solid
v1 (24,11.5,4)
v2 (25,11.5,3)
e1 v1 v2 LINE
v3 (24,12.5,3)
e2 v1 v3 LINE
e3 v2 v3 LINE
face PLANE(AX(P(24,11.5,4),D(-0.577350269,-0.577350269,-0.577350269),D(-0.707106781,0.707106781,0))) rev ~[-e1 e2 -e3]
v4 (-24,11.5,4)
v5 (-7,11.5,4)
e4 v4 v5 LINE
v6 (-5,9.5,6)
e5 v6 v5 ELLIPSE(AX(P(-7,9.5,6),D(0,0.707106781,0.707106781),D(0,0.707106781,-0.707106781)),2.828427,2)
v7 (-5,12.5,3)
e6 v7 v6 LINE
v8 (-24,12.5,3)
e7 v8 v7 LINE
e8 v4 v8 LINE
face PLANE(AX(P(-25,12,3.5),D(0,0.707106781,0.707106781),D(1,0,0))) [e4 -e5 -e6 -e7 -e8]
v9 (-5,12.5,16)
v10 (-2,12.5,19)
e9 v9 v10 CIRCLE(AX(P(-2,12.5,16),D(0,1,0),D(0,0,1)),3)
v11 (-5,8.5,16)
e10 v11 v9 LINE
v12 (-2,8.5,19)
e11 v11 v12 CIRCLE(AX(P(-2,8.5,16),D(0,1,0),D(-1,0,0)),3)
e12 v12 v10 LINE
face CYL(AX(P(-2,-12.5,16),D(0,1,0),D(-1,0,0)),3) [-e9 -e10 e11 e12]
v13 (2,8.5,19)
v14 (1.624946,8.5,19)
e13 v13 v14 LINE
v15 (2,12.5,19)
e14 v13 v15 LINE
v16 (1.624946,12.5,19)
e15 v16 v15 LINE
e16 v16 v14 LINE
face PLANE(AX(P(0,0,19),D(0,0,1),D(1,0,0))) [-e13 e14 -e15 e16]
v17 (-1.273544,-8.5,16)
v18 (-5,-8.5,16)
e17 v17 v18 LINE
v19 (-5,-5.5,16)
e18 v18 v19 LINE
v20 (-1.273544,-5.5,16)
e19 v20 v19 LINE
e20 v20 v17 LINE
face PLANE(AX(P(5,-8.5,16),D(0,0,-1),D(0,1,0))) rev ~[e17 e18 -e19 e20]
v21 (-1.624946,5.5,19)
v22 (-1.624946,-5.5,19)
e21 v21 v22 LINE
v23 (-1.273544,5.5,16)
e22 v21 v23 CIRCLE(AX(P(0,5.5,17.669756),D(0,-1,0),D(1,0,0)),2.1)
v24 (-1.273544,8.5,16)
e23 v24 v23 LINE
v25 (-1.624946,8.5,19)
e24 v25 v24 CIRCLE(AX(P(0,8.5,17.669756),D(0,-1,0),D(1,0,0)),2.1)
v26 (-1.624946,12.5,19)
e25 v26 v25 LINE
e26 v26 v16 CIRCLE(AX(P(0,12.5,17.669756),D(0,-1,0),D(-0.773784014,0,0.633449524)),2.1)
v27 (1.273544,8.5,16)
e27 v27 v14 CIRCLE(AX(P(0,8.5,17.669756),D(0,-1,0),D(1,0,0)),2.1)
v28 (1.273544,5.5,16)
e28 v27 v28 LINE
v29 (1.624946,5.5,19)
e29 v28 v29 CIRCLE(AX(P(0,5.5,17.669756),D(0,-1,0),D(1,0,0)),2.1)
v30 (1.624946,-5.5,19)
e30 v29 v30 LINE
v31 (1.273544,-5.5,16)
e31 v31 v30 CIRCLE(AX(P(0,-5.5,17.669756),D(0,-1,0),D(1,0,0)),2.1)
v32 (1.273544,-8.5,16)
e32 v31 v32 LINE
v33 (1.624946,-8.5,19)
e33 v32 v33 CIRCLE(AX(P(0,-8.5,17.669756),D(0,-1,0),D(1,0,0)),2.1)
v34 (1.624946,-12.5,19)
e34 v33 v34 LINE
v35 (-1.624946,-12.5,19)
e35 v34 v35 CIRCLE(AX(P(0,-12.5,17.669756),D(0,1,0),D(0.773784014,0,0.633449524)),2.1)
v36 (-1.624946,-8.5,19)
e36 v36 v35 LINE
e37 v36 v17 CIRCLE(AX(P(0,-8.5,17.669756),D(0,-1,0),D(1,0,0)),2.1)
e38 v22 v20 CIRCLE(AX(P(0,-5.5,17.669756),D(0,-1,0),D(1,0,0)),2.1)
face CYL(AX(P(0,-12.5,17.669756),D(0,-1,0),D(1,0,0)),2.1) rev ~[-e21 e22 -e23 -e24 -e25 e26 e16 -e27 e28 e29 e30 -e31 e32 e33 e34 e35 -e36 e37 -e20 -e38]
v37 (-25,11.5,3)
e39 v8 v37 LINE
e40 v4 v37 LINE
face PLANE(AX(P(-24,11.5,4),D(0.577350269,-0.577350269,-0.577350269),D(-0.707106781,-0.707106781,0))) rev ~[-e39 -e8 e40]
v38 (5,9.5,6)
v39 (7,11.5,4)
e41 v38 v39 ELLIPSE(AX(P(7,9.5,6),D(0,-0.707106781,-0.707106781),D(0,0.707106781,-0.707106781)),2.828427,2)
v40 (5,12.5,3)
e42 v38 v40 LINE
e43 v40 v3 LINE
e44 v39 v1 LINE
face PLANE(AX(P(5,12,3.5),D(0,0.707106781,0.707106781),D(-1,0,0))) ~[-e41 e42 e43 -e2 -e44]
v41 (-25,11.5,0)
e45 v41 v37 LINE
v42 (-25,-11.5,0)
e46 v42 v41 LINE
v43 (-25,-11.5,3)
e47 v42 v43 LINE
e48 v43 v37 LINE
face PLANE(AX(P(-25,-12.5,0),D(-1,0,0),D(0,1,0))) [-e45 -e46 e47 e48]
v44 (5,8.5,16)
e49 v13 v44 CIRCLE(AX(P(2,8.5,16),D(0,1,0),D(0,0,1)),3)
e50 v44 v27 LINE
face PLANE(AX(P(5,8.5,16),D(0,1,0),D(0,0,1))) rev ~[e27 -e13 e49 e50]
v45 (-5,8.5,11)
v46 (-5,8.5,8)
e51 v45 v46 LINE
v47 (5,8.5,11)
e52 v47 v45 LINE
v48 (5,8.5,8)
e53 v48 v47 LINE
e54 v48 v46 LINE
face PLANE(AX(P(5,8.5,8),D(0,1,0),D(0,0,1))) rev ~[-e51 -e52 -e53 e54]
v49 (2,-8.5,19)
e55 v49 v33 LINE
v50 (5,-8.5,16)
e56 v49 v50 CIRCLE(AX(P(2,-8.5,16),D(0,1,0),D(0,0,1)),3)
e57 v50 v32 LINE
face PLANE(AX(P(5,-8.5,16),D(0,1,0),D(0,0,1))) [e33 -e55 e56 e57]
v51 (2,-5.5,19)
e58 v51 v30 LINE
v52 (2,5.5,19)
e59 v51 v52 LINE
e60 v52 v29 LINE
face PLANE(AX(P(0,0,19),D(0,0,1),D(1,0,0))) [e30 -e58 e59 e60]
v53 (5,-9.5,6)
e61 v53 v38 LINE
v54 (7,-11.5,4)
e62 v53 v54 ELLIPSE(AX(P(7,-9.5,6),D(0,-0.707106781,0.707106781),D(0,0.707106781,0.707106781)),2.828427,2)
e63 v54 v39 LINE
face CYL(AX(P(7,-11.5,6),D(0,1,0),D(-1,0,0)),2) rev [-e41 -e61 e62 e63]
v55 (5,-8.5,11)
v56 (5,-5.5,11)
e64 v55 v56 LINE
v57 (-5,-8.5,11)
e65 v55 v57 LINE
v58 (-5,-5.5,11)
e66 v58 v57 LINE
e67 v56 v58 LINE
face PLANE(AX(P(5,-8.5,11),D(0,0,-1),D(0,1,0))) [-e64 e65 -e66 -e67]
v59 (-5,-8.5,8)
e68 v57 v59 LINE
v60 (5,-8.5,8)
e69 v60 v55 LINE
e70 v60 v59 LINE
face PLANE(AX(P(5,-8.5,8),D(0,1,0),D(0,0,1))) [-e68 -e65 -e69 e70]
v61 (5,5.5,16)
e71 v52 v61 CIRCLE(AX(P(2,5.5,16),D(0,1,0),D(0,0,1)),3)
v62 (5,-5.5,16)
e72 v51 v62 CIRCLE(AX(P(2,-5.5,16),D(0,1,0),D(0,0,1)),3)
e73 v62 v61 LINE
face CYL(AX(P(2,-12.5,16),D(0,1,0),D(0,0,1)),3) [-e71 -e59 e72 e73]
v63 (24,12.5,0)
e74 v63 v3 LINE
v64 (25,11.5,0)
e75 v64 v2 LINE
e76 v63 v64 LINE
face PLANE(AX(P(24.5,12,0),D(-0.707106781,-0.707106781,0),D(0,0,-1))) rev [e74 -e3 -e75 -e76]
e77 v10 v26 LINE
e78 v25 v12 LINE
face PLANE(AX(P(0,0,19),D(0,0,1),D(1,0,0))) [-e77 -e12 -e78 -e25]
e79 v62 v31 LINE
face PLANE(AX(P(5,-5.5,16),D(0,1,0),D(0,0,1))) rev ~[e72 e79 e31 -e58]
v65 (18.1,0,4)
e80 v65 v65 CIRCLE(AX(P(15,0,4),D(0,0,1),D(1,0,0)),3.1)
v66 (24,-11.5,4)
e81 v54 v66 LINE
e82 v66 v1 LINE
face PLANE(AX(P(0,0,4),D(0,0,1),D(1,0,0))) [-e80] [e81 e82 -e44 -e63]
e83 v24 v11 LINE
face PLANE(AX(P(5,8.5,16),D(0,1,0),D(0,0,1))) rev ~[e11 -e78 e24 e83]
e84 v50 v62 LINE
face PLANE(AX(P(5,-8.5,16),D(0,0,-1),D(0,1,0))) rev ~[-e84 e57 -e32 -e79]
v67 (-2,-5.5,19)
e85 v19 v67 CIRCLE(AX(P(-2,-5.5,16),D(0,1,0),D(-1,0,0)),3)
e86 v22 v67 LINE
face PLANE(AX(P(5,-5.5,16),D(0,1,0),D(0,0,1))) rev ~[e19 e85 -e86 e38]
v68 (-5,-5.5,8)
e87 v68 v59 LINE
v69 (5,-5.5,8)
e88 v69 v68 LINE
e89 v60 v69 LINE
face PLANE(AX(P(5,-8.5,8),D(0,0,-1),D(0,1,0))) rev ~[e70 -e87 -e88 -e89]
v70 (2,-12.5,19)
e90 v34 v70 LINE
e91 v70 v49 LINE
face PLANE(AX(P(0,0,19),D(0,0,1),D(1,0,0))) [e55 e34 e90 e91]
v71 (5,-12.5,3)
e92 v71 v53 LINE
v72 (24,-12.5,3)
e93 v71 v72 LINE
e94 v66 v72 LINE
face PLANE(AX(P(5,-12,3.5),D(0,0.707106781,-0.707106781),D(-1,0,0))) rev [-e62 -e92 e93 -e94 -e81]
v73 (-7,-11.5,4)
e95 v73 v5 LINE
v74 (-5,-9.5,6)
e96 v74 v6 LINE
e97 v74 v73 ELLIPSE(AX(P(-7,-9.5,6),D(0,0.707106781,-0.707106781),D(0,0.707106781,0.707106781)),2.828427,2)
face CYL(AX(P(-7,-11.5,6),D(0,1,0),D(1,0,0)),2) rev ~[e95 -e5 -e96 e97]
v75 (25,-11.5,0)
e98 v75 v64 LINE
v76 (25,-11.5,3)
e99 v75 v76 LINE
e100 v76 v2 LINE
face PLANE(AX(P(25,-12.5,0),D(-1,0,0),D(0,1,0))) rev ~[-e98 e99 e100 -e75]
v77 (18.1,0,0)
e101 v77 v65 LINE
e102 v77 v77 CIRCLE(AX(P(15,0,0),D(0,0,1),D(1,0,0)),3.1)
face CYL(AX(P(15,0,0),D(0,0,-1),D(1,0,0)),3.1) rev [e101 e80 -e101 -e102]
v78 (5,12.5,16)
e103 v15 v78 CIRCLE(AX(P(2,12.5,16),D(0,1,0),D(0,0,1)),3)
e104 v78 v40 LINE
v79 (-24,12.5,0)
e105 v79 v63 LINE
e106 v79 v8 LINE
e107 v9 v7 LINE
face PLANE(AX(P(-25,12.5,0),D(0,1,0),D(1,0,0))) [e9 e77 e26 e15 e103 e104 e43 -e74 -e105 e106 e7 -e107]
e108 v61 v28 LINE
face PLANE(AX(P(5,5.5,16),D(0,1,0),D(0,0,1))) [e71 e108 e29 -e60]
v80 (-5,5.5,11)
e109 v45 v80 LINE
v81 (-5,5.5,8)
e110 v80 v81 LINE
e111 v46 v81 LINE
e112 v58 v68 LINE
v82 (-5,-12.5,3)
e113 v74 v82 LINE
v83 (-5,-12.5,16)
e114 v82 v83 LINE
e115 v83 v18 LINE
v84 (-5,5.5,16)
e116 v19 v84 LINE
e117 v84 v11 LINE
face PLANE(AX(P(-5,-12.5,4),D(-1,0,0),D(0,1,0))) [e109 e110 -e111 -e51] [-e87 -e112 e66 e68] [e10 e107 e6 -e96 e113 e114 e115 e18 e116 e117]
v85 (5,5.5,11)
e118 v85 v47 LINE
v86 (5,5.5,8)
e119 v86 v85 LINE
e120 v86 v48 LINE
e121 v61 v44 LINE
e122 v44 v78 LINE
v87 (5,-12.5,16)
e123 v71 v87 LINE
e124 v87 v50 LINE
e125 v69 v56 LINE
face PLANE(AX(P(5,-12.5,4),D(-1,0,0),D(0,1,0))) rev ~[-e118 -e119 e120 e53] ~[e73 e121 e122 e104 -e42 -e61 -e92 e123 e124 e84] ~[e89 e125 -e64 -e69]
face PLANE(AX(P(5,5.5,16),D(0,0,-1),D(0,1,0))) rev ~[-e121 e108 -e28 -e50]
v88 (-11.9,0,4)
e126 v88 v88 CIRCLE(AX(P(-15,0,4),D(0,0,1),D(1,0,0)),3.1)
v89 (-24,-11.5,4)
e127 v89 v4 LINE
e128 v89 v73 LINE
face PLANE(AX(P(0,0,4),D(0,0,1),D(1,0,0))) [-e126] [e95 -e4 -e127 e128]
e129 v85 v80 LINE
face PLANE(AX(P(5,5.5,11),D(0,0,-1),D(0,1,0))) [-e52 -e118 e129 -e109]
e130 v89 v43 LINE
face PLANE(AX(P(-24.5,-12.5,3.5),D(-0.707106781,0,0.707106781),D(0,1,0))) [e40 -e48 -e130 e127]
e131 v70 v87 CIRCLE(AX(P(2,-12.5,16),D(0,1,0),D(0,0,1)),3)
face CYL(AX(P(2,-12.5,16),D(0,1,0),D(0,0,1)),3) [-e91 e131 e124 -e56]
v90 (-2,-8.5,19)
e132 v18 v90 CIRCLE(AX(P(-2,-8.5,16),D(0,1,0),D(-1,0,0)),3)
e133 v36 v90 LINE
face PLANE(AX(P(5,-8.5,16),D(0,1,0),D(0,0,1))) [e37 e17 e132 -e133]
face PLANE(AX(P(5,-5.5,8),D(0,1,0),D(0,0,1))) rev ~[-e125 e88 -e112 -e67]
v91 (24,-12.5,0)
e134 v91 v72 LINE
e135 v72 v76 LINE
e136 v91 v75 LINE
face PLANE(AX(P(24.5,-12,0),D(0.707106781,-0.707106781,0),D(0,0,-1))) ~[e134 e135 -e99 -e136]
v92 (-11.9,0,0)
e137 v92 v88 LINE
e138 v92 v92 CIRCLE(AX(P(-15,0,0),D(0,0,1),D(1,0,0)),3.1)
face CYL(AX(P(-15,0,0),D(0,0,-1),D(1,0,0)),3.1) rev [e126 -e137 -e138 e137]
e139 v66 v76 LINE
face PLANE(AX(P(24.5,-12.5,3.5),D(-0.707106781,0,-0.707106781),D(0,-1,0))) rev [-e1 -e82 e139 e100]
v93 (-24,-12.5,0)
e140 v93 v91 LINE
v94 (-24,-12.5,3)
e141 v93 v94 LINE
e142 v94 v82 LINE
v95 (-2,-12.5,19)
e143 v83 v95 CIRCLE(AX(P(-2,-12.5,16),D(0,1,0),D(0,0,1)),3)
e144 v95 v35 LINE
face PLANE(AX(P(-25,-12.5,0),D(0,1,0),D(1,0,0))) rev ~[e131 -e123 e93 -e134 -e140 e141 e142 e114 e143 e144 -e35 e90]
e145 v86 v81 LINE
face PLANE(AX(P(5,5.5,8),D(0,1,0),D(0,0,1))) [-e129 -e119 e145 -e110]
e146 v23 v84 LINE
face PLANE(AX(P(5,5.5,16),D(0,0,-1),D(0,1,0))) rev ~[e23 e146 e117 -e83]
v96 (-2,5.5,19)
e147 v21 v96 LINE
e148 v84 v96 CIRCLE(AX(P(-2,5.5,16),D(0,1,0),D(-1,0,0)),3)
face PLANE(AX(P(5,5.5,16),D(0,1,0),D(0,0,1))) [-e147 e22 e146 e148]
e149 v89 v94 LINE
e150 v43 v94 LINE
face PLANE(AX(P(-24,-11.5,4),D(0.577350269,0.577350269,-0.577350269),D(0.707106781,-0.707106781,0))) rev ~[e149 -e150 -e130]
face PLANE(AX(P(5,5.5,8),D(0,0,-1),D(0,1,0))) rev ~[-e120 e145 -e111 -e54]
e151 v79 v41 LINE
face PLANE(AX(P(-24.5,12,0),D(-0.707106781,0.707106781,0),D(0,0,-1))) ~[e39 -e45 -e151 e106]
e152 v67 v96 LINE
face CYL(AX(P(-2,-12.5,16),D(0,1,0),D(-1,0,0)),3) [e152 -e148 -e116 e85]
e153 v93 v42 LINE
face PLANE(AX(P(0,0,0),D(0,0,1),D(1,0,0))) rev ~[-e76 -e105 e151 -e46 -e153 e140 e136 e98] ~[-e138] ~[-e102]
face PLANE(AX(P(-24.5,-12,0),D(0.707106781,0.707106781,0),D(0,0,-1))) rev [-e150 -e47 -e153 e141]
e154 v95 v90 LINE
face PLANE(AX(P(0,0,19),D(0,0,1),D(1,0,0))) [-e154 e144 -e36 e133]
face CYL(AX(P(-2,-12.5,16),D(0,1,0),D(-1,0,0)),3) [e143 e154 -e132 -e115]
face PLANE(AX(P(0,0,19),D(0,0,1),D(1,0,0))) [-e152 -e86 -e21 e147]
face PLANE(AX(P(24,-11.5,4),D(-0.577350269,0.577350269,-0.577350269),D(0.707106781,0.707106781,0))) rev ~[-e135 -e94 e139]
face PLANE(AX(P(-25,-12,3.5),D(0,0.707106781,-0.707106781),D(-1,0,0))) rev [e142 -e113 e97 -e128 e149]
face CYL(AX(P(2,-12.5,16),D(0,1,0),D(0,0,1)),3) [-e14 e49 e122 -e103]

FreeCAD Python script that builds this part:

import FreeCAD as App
import Part
import Sketcher
from FreeCAD import Vector
Q = App.Units.Quantity


def edges_at(feature, points):
    """Names of the edges that pass closest to the given points."""
    edges = feature.Shape.Edges
    near = lambda p: min(range(len(edges)), key=lambda i: edges[i].distToShape(Part.Vertex(*p))[0])
    return sorted({f"Edge{near(p) + 1}" for p in points})


def add_polygon(sketch, points):
    """Adds a closed chain of lines whose ends are joined by coincident constraints."""
    first, n = sketch.GeometryCount, len(points)
    for a, b in zip(points, points[1:] + points[:1]):
        sketch.addGeometry(Part.LineSegment(App.Vector(*a, 0), App.Vector(*b, 0)), False)
    for i in range(n):
        sketch.addConstraint(Sketcher.Constraint("Coincident", first + i, 2, first + (i + 1) % n, 1))

doc = App.newDocument("Part")
params = doc.addObject("Spreadsheet::Sheet", "Params")
for row, (alias, value) in enumerate([
    ("sketch1_diameter", "6.2 mm"),
    ("sketch1_width", "50 mm"),
    ("sketch1_height", "25 mm"),
    ("pad1_length", "4 mm"),
    ("sketch2_width", "10 mm"),
    ("sketch2_height", "25 mm"),
    ("pad2_length", "15 mm"),
    ("sketch3_diameter", "4.2 mm"),
    ("fillet_radius", "3 mm"),
    ("sketch4_width", "3 mm"),
    ("chamfer_size", "1 mm"),
    ("fillet2_radius", "2 mm"),
], start=1):
    params.set(f"A{row}", alias)
    params.set(f"B{row}", "=" + value)
    params.setAlias(f"B{row}", alias)

body = doc.addObject("PartDesign::Body", "Body")

# Sketch on XY plane
sketch1 = doc.addObject("Sketcher::SketchObject", "Sketch")
body.addObject(sketch1)
sketch1.AttachmentSupport = (doc.XY_Plane, [""])
sketch1.MapMode = "FlatFace"
add_polygon(sketch1, [(-25, 12.5), (-25, -12.5), (25, -12.5), (25, 12.5)])  # lines 0-3
sketch1.addGeometry(Part.Circle(Vector(-15, 0, 0), Vector(0, 0, 1), 3.1), False)  # 4
sketch1.addGeometry(Part.Circle(Vector(15, 0, 0), Vector(0, 0, 1), 3.1), False)  # 5
sketch1.addConstraint(Sketcher.Constraint("Vertical", 0))
sketch1.addConstraint(Sketcher.Constraint("Horizontal", 1))
sketch1.addConstraint(Sketcher.Constraint("Vertical", 2))
sketch1.addConstraint(Sketcher.Constraint("Horizontal", 3))
sketch1.addConstraint(Sketcher.Constraint("Equal", 4, 5))
sketch1.addConstraint(Sketcher.Constraint("Symmetric", 4, 3, 5, 3, -1, 1))
sketch1.addConstraint(Sketcher.Constraint("Symmetric", 0, 2, 2, 2, -1, 1))
sketch1.addConstraint(Sketcher.Constraint("PointOnObject", 4, 3, -1))
sketch1.addConstraint(Sketcher.Constraint("Diameter", 4, Q("6.2 mm")))
sketch1.addConstraint(Sketcher.Constraint("DistanceX", 1, 1, 1, 2, Q("50 mm")))
sketch1.addConstraint(Sketcher.Constraint("DistanceY", 0, 2, 0, 1, Q("25 mm")))
sketch1.addConstraint(Sketcher.Constraint("DistanceX", 4, 3, -1, 1, Q("15 mm")))
sketch1.setExpression("Constraints[12]", "Params.sketch1_diameter")
sketch1.setExpression("Constraints[13]", "Params.sketch1_width")
sketch1.setExpression("Constraints[14]", "Params.sketch1_height")
pad1 = doc.addObject("PartDesign::Pad", "Pad")
body.addObject(pad1)
pad1.Profile = sketch1
pad1.setExpression("Length", "Params.pad1_length")

# Sketch on XY plane
sketch2 = doc.addObject("Sketcher::SketchObject", "Sketch001")
body.addObject(sketch2)
sketch2.AttachmentSupport = (doc.XY_Plane, [""])
sketch2.MapMode = "FlatFace"
sketch2.AttachmentOffset = App.Placement(Vector(0, 0, 4), App.Rotation())
add_polygon(sketch2, [(-5, 12.5), (-5, -12.5), (5, -12.5), (5, 12.5)])  # lines 0-3
sketch2.addConstraint(Sketcher.Constraint("Vertical", 0))
sketch2.addConstraint(Sketcher.Constraint("Horizontal", 1))
sketch2.addConstraint(Sketcher.Constraint("Vertical", 2))
sketch2.addConstraint(Sketcher.Constraint("Horizontal", 3))
sketch2.addConstraint(Sketcher.Constraint("Symmetric", 0, 2, 2, 2, -1, 1))
sketch2.addConstraint(Sketcher.Constraint("DistanceX", 1, 1, 1, 2, Q("10 mm")))
sketch2.addConstraint(Sketcher.Constraint("DistanceY", 0, 2, 0, 1, Q("25 mm")))
sketch2.setExpression("Constraints[9]", "Params.sketch2_width")
sketch2.setExpression("Constraints[10]", "Params.sketch2_height")
pad2 = doc.addObject("PartDesign::Pad", "Pad001")
body.addObject(pad2)
pad2.Profile = sketch2
pad2.setExpression("Length", "Params.pad2_length")

# Sketch on XZ plane
sketch3 = doc.addObject("Sketcher::SketchObject", "Sketch002")
body.addObject(sketch3)
sketch3.AttachmentSupport = (doc.XZ_Plane, [""])
sketch3.MapMode = "FlatFace"
sketch3.AttachmentOffset = App.Placement(Vector(0, 0, 12.5), App.Rotation())
sketch3.addGeometry(Part.Circle(Vector(0, 17.669756, 0), Vector(0, 0, 1), 2.1), False)
sketch3.addConstraint(Sketcher.Constraint("PointOnObject", 0, 3, -2))
sketch3.addConstraint(Sketcher.Constraint("Diameter", 0, Q("4.2 mm")))
sketch3.addConstraint(Sketcher.Constraint("DistanceY", -1, 1, 0, 3, Q("17.669756 mm")))
sketch3.setExpression("Constraints[1]", "Params.sketch3_diameter")
pocket1 = doc.addObject("PartDesign::Pocket", "Pocket")
body.addObject(pocket1)
pocket1.Profile = sketch3
pocket1.Type = "ThroughAll"
doc.recompute()

fillet = doc.addObject("PartDesign::Fillet", "Fillet")
body.addObject(fillet)
fillet.Base = (pocket1, edges_at(pocket1, [(5, 0, 19), (-5, 0, 19)]))
fillet.setExpression("Radius", "Params.fillet_radius")

# Sketch on YZ plane
sketch4 = doc.addObject("Sketcher::SketchObject", "Sketch003")
body.addObject(sketch4)
sketch4.AttachmentSupport = (doc.YZ_Plane, [""])
sketch4.MapMode = "FlatFace"
sketch4.AttachmentOffset = App.Placement(Vector(0, 0, 5), App.Rotation())
add_polygon(sketch4, [(-8.5, 19), (-8.5, 16), (-5.5, 16), (-5.5, 19)])  # lines 0-3
add_polygon(sketch4, [(5.5, 19), (5.5, 16), (8.5, 16), (8.5, 19)])  # lines 4-7
add_polygon(sketch4, [(-8.5, 11), (-8.5, 8), (-5.5, 8), (-5.5, 11)])  # lines 8-11
add_polygon(sketch4, [(5.5, 11), (5.5, 8), (8.5, 8), (8.5, 11)])  # lines 12-15
sketch4.addConstraint(Sketcher.Constraint("Vertical", 0))
sketch4.addConstraint(Sketcher.Constraint("Horizontal", 1))
sketch4.addConstraint(Sketcher.Constraint("Vertical", 2))
sketch4.addConstraint(Sketcher.Constraint("Horizontal", 3))
sketch4.addConstraint(Sketcher.Constraint("Vertical", 4))
sketch4.addConstraint(Sketcher.Constraint("Horizontal", 5))
sketch4.addConstraint(Sketcher.Constraint("Vertical", 6))
sketch4.addConstraint(Sketcher.Constraint("Horizontal", 7))
sketch4.addConstraint(Sketcher.Constraint("Vertical", 8))
sketch4.addConstraint(Sketcher.Constraint("Horizontal", 9))
sketch4.addConstraint(Sketcher.Constraint("Vertical", 10))
sketch4.addConstraint(Sketcher.Constraint("Horizontal", 11))
sketch4.addConstraint(Sketcher.Constraint("Vertical", 12))
sketch4.addConstraint(Sketcher.Constraint("Horizontal", 13))
sketch4.addConstraint(Sketcher.Constraint("Vertical", 14))
sketch4.addConstraint(Sketcher.Constraint("Horizontal", 15))
sketch4.addConstraint(Sketcher.Constraint("Symmetric", 1, 2, 4, 2, -2))
sketch4.addConstraint(Sketcher.Constraint("Symmetric", 3, 2, 6, 2, -2))
sketch4.addConstraint(Sketcher.Constraint("Symmetric", 9, 2, 12, 2, -2))
sketch4.addConstraint(Sketcher.Constraint("Symmetric", 11, 2, 14, 2, -2))
sketch4.addConstraint(Sketcher.Constraint("Vertical", 3, 2, 8, 2))
sketch4.addConstraint(Sketcher.Constraint("Vertical", 2, 2, 9, 2))
sketch4.addConstraint(Sketcher.Constraint("Equal", 15, 0))
sketch4.addConstraint(Sketcher.Constraint("Equal", 6, 8))
sketch4.addConstraint(Sketcher.Constraint("DistanceX", 1, 1, 1, 2, Q("3 mm")))
sketch4.addConstraint(Sketcher.Constraint("DistanceY", -1, 1, 0, 2, Q("16 mm")))
sketch4.addConstraint(Sketcher.Constraint("DistanceY", -1, 1, 8, 2, Q("8 mm")))
sketch4.addConstraint(Sketcher.Constraint("DistanceX", 1, 2, 4, 2, Q("11 mm")))
sketch4.setExpression("Constraints[40]", "Params.sketch4_width")
pocket2 = doc.addObject("PartDesign::Pocket", "Pocket001")
body.addObject(pocket2)
pocket2.Profile = sketch4
pocket2.Type = "ThroughAll"
doc.recompute()

chamfer = doc.addObject("PartDesign::Chamfer", "Chamfer")
body.addObject(chamfer)
chamfer.Base = (pocket2, edges_at(pocket2, [
    (-25, -12.5, 2),
    (25, -12.5, 2),
    (25, 12.5, 2),
    (-25, 12.5, 2),
    (-15, 12.5, 4),
    (-25, 0, 4),
    (-15, -12.5, 4),
    (15, -12.5, 4),
    (25, 0, 4),
    (15, 12.5, 4),
]))
chamfer.setExpression("Size", "Params.chamfer_size")
doc.recompute()

fillet2 = doc.addObject("PartDesign::Fillet", "Fillet001")
body.addObject(fillet2)
fillet2.Base = (chamfer, edges_at(chamfer, [(-5, 0, 4), (5, 0, 4)]))
fillet2.setExpression("Radius", "Params.fillet2_radius")

doc.recompute()
